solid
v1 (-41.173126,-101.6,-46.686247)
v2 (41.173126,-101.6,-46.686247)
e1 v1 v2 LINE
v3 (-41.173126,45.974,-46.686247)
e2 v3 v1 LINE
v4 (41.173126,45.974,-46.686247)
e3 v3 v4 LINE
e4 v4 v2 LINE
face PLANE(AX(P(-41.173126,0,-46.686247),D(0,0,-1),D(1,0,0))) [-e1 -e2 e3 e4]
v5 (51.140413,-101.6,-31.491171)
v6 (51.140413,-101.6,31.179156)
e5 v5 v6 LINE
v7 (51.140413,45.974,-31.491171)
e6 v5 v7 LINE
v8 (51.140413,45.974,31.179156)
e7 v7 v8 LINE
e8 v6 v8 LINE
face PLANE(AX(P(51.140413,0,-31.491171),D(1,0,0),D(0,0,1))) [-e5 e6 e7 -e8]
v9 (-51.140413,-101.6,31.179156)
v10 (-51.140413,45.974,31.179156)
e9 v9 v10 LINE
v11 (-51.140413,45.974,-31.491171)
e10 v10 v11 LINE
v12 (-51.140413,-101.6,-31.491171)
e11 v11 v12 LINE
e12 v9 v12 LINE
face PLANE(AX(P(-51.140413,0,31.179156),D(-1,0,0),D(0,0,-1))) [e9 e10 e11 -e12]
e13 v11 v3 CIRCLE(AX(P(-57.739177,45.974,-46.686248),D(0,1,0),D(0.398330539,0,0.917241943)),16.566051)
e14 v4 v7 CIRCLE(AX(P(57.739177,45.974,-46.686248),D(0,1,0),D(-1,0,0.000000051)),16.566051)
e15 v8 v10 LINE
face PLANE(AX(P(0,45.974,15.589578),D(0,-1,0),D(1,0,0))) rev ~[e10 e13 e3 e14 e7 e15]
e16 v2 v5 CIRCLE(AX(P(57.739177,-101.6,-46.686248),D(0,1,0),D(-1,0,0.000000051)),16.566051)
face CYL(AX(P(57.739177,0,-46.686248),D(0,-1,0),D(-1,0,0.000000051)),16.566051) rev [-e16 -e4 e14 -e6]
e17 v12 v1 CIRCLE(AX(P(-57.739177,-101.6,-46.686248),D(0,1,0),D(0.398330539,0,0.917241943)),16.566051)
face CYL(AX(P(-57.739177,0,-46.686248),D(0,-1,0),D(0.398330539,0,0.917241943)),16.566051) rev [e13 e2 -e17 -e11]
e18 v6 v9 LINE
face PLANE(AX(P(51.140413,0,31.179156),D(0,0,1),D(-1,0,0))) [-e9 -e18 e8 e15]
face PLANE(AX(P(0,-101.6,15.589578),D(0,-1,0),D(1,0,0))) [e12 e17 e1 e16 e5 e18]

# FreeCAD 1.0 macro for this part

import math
import FreeCAD as App
import Part
import Sketcher

V = App.Vector
Q = App.Units.Quantity

doc = App.newDocument("Part")
body = doc.addObject("PartDesign::Body", "Body")

# Sketch on XZ plane
sketch1 = doc.addObject("Sketcher::SketchObject", "Sketch")
body.addObject(sketch1)
sketch1.AttachmentSupport = (doc.XZ_Plane, [""])
sketch1.MapMode = "FlatFace"
sketch1.addGeometry([
    Part.LineSegment(V(-51, 31, 0), V(-51, -31, 0)),  # 0
    Part.ArcOfCircle(Part.Circle(V(-58, -47, 0), V(0, 0, 1), 17), math.radians(0), math.radians(67)),  # 1
    Part.LineSegment(V(-41, -47, 0), V(41, -47, 0)),  # 2
    Part.ArcOfCircle(Part.Circle(V(58, -47, 0), V(0, 0, 1), 17), math.radians(113), math.radians(180)),  # 3
    Part.LineSegment(V(51, -31, 0), V(51, 31, 0)),  # 4
    Part.LineSegment(V(51, 31, 0), V(-51, 31, 0)),  # 5
], False)
sketch1.addConstraint([
    Sketcher.Constraint("Coincident", 0, 2, 1, 2),
    Sketcher.Constraint("Coincident", 1, 1, 2, 1),
    Sketcher.Constraint("Coincident", 2, 2, 3, 2),
    Sketcher.Constraint("Coincident", 3, 1, 4, 1),
    Sketcher.Constraint("Coincident", 4, 2, 5, 1),
    Sketcher.Constraint("Coincident", 5, 2, 0, 1),
    Sketcher.Constraint("Vertical", 0),
    Sketcher.Constraint("Horizontal", 2),
    Sketcher.Constraint("Vertical", 4),
    Sketcher.Constraint("Horizontal", 5),
    Sketcher.Constraint("Equal", 1, 3),
    Sketcher.Constraint("Symmetric", 1, 3, 3, 3, -2),
    Sketcher.Constraint("Horizontal", 3, 3, 1, 1),
    Sketcher.Constraint("Horizontal", 0, 2, 3, 1),
    Sketcher.Constraint("Radius", 1, 16.566051),
    Sketcher.Constraint("DistanceX", 2, 1, 2, 2, 82.346252),
    Sketcher.Constraint("DistanceX", 5, 2, 5, 1, 102.280826),
    Sketcher.Constraint("DistanceY", 0, 2, 0, 1, 62.670327),
    Sketcher.Constraint("DistanceY", 0, 2, -1, 1, 31.491171),
])
pad1 = doc.addObject("PartDesign::Pad", "Pad")
body.addObject(pad1)
pad1.Profile = sketch1
pad1.Type = "TwoLengths"
pad1.Length = Q("4 in")
pad1.Length2 = Q("1.81 in")

doc.recompute()
